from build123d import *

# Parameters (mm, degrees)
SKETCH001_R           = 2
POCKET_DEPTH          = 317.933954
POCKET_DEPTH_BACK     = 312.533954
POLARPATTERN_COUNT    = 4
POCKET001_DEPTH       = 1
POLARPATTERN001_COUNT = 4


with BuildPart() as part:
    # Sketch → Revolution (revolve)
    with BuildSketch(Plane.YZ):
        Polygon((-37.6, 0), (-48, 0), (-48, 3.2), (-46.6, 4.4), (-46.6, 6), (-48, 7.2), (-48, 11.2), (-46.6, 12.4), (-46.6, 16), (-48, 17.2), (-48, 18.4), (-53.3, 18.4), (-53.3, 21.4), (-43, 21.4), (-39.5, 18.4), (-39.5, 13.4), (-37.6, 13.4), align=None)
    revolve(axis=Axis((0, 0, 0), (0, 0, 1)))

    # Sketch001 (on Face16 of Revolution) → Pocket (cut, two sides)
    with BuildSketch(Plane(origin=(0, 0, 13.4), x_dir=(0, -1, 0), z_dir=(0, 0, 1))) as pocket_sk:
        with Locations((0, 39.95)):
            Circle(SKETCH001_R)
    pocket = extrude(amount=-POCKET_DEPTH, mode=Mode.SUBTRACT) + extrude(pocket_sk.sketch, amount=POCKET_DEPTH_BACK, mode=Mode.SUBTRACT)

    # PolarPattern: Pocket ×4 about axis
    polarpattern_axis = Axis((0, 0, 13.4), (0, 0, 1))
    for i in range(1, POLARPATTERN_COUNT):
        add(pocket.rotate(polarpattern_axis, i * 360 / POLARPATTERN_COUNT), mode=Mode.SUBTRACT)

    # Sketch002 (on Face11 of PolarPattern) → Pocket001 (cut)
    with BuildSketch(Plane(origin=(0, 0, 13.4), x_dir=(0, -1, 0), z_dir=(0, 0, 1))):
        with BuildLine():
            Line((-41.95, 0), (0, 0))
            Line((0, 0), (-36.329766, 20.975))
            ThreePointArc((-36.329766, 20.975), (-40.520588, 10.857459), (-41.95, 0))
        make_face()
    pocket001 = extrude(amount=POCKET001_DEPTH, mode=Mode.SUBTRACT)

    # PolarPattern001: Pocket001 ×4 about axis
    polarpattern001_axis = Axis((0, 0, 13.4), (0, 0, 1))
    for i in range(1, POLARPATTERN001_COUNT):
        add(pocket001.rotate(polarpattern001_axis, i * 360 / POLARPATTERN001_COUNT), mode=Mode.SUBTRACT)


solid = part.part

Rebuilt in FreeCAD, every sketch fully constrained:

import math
import FreeCAD as App
import Part
import Sketcher
from FreeCAD import Vector
Q = App.Units.Quantity

doc = App.newDocument("Part")
body = doc.addObject("PartDesign::Body", "Body")

sketch1 = body.newObject("Sketcher::SketchObject", "Sketch")
sketch1.AttachmentSupport = (doc.getObject("YZ_Plane"), [""])
sketch1.MapMode = "FlatFace"
sketch1.addGeometry([
    Part.LineSegment(Vector(-48, 0, 0), Vector(-37.6, 0, 0)),
    Part.LineSegment(Vector(-37.6, 0, 0), Vector(-37.6, 13.4, 0)),
    Part.LineSegment(Vector(-37.6, 13.4, 0), Vector(-39.5, 13.4, 0)),
    Part.LineSegment(Vector(-39.5, 13.4, 0), Vector(-39.5, 18.4, 0)),
    Part.LineSegment(Vector(-39.5, 18.4, 0), Vector(-43, 21.4, 0)),
    Part.LineSegment(Vector(-43, 21.4, 0), Vector(-53.3, 21.4, 0)),
    Part.LineSegment(Vector(-53.3, 21.4, 0), Vector(-53.3, 18.4, 0)),
    Part.LineSegment(Vector(-53.3, 18.4, 0), Vector(-48, 18.4, 0)),
    Part.LineSegment(Vector(-48, 18.4, 0), Vector(-48, 17.2, 0)),
    Part.LineSegment(Vector(-48, 17.2, 0), Vector(-46.6, 16, 0)),
    Part.LineSegment(Vector(-46.6, 16, 0), Vector(-46.6, 12.4, 0)),
    Part.LineSegment(Vector(-46.6, 12.4, 0), Vector(-48, 11.2, 0)),
    Part.LineSegment(Vector(-48, 11.2, 0), Vector(-48, 7.2, 0)),
    Part.LineSegment(Vector(-48, 7.2, 0), Vector(-46.6, 6, 0)),
    Part.LineSegment(Vector(-46.6, 6, 0), Vector(-46.6, 4.4, 0)),
    Part.LineSegment(Vector(-46.6, 4.4, 0), Vector(-48, 3.2, 0)),
    Part.LineSegment(Vector(-48, 3.2, 0), Vector(-48, 0, 0)),
], False)
sketch1.addConstraint([
    Sketcher.Constraint("Coincident", 0, 2, 1, 1),
    Sketcher.Constraint("Coincident", 1, 2, 2, 1),
    Sketcher.Constraint("Coincident", 2, 2, 3, 1),
    Sketcher.Constraint("Coincident", 3, 2, 4, 1),
    Sketcher.Constraint("Coincident", 4, 2, 5, 1),
    Sketcher.Constraint("Coincident", 5, 2, 6, 1),
    Sketcher.Constraint("Coincident", 6, 2, 7, 1),
    Sketcher.Constraint("Coincident", 7, 2, 8, 1),
    Sketcher.Constraint("Coincident", 8, 2, 9, 1),
    Sketcher.Constraint("Coincident", 9, 2, 10, 1),
    Sketcher.Constraint("Coincident", 10, 2, 11, 1),
    Sketcher.Constraint("Coincident", 11, 2, 12, 1),
    Sketcher.Constraint("Coincident", 12, 2, 13, 1),
    Sketcher.Constraint("Coincident", 13, 2, 14, 1),
    Sketcher.Constraint("Coincident", 14, 2, 15, 1),
    Sketcher.Constraint("Coincident", 15, 2, 16, 1),
    Sketcher.Constraint("Coincident", 16, 2, 0, 1),
    Sketcher.Constraint("Horizontal", 0),
    Sketcher.Constraint("Vertical", 1),
    Sketcher.Constraint("Horizontal", 2),
    Sketcher.Constraint("Vertical", 3),
    Sketcher.Constraint("Horizontal", 5),
    Sketcher.Constraint("Vertical", 6),
    Sketcher.Constraint("Horizontal", 7),
    Sketcher.Constraint("Vertical", 8),
    Sketcher.Constraint("Vertical", 10),
    Sketcher.Constraint("Vertical", 12),
    Sketcher.Constraint("Vertical", 14),
    Sketcher.Constraint("Vertical", 16),
    Sketcher.Constraint("PointOnObject", 0, 2, -1),
    Sketcher.Constraint("Parallel", 4, 9),
    Sketcher.Constraint("Parallel", 9, 13),
    Sketcher.Constraint("Parallel", 11, 15),
    Sketcher.Constraint("Horizontal", 3, 2, 6, 2),
    Sketcher.Constraint("Vertical", 8, 2, 11, 2),
    Sketcher.Constraint("Vertical", 10, 2, 13, 2),
    Sketcher.Constraint("Vertical", 12, 2, 15, 2),
    Sketcher.Constraint("Equal", 9, 11),
    Sketcher.Constraint("DistanceY", 3, 1, 3, 2, 5.0),
    Sketcher.Constraint("DistanceY", 6, 2, 6, 1, 3.0),
    Sketcher.Constraint("DistanceY", 12, 2, 12, 1, 4.0),
    Sketcher.Constraint("DistanceX", 0, 1, 0, 2, 10.4),
    Sketcher.Constraint("DistanceX", 2, 2, 2, 1, 1.9),
    Sketcher.Constraint("DistanceX", 5, 2, 5, 1, 10.3),
    Sketcher.Constraint("DistanceX", 7, 1, 7, 2, 5.3),
    Sketcher.Constraint("DistanceY", 1, 1, 1, 2, 13.4),
    Sketcher.Constraint("DistanceY", 8, 2, 8, 1, 1.2),
    Sketcher.Constraint("DistanceY", 10, 2, 10, 1, 3.6),
    Sketcher.Constraint("DistanceY", 14, 2, 14, 1, 1.6),
    Sketcher.Constraint("DistanceY", 16, 2, 16, 1, 3.2),
    Sketcher.Constraint("DistanceX", 4, 2, -1, 1, 43.0),
])
revolution = body.newObject("PartDesign::Revolution", "Revolution")
revolution.Profile = sketch1
revolution.ReferenceAxis = (sketch1, ["V_Axis"])
revolution.Angle = 360

sketch2 = body.newObject("Sketcher::SketchObject", "Sketch001")
sketch2.AttachmentSupport = (doc.getObject("XY_Plane"), [""])
sketch2.MapMode = "FlatFace"
sketch2.AttachmentOffset = App.Placement(Vector(0, 0, 13.4), App.Rotation())
sketch2.addGeometry(Part.Circle(Vector(40, 0, 0), Vector(0, 0, 1), 2), False)
sketch2.addConstraint([
    Sketcher.Constraint("PointOnObject", 0, 3, -1),
    Sketcher.Constraint("Diameter", 0, 4.0),
    Sketcher.Constraint("DistanceX", -1, 1, 0, 3, 39.95),
])
pocket1 = body.newObject("PartDesign::Pocket", "Pocket")
pocket1.Profile = sketch2
pocket1.Type = "ThroughAll"
pocket1.Midplane = True
doc.recompute()

polarpattern = body.newObject("PartDesign::PolarPattern", "PolarPattern")
polarpattern.Originals = [pocket1]
polarpattern.Axis = (doc.getObject("Z_Axis"), [""])
polarpattern.Angle = 360
polarpattern.Occurrences = 4
body.Tip = polarpattern

sketch3 = body.newObject("Sketcher::SketchObject", "Sketch002")
sketch3.AttachmentSupport = (doc.getObject("XY_Plane"), [""])
sketch3.MapMode = "FlatFace"
sketch3.AttachmentOffset = App.Placement(Vector(0, 0, 13.4), App.Rotation())
sketch3.addGeometry([
    Part.LineSegment(Vector(0, 42, 0), Vector(0, 0, 0)),
    Part.LineSegment(Vector(0, 0, 0), Vector(21, 36, 0)),
    Part.ArcOfCircle(Part.Circle(Vector(0, 0, 0), Vector(0, 0, 1), 42), math.radians(60), math.radians(90)),
], False)
sketch3.addConstraint([
    Sketcher.Constraint("Coincident", 0, 2, 1, 1),
    Sketcher.Constraint("Coincident", 1, 2, 2, 1),
    Sketcher.Constraint("Coincident", 2, 2, 0, 1),
    Sketcher.Constraint("Vertical", 0),
    Sketcher.Constraint("Coincident", 0, 2, -1, 1),
    Sketcher.Constraint("Angle", 1, Q("60 deg")),
    Sketcher.Constraint("DistanceY", 0, 2, 0, 1, 41.95),
    Sketcher.Constraint("Distance", 1, 41.95),
    Sketcher.Constraint("Radius", 2, 41.950015),
])
pocket2 = body.newObject("PartDesign::Pocket", "Pocket001")
pocket2.Profile = sketch3
pocket2.Length = 1
pocket2.Reversed = True
doc.recompute()

polarpattern2 = body.newObject("PartDesign::PolarPattern", "PolarPattern001")
polarpattern2.Originals = [pocket2]
polarpattern2.Axis = (doc.getObject("Z_Axis"), [""])
polarpattern2.Angle = 360
polarpattern2.Occurrences = 4
body.Tip = polarpattern2

doc.recompute()
